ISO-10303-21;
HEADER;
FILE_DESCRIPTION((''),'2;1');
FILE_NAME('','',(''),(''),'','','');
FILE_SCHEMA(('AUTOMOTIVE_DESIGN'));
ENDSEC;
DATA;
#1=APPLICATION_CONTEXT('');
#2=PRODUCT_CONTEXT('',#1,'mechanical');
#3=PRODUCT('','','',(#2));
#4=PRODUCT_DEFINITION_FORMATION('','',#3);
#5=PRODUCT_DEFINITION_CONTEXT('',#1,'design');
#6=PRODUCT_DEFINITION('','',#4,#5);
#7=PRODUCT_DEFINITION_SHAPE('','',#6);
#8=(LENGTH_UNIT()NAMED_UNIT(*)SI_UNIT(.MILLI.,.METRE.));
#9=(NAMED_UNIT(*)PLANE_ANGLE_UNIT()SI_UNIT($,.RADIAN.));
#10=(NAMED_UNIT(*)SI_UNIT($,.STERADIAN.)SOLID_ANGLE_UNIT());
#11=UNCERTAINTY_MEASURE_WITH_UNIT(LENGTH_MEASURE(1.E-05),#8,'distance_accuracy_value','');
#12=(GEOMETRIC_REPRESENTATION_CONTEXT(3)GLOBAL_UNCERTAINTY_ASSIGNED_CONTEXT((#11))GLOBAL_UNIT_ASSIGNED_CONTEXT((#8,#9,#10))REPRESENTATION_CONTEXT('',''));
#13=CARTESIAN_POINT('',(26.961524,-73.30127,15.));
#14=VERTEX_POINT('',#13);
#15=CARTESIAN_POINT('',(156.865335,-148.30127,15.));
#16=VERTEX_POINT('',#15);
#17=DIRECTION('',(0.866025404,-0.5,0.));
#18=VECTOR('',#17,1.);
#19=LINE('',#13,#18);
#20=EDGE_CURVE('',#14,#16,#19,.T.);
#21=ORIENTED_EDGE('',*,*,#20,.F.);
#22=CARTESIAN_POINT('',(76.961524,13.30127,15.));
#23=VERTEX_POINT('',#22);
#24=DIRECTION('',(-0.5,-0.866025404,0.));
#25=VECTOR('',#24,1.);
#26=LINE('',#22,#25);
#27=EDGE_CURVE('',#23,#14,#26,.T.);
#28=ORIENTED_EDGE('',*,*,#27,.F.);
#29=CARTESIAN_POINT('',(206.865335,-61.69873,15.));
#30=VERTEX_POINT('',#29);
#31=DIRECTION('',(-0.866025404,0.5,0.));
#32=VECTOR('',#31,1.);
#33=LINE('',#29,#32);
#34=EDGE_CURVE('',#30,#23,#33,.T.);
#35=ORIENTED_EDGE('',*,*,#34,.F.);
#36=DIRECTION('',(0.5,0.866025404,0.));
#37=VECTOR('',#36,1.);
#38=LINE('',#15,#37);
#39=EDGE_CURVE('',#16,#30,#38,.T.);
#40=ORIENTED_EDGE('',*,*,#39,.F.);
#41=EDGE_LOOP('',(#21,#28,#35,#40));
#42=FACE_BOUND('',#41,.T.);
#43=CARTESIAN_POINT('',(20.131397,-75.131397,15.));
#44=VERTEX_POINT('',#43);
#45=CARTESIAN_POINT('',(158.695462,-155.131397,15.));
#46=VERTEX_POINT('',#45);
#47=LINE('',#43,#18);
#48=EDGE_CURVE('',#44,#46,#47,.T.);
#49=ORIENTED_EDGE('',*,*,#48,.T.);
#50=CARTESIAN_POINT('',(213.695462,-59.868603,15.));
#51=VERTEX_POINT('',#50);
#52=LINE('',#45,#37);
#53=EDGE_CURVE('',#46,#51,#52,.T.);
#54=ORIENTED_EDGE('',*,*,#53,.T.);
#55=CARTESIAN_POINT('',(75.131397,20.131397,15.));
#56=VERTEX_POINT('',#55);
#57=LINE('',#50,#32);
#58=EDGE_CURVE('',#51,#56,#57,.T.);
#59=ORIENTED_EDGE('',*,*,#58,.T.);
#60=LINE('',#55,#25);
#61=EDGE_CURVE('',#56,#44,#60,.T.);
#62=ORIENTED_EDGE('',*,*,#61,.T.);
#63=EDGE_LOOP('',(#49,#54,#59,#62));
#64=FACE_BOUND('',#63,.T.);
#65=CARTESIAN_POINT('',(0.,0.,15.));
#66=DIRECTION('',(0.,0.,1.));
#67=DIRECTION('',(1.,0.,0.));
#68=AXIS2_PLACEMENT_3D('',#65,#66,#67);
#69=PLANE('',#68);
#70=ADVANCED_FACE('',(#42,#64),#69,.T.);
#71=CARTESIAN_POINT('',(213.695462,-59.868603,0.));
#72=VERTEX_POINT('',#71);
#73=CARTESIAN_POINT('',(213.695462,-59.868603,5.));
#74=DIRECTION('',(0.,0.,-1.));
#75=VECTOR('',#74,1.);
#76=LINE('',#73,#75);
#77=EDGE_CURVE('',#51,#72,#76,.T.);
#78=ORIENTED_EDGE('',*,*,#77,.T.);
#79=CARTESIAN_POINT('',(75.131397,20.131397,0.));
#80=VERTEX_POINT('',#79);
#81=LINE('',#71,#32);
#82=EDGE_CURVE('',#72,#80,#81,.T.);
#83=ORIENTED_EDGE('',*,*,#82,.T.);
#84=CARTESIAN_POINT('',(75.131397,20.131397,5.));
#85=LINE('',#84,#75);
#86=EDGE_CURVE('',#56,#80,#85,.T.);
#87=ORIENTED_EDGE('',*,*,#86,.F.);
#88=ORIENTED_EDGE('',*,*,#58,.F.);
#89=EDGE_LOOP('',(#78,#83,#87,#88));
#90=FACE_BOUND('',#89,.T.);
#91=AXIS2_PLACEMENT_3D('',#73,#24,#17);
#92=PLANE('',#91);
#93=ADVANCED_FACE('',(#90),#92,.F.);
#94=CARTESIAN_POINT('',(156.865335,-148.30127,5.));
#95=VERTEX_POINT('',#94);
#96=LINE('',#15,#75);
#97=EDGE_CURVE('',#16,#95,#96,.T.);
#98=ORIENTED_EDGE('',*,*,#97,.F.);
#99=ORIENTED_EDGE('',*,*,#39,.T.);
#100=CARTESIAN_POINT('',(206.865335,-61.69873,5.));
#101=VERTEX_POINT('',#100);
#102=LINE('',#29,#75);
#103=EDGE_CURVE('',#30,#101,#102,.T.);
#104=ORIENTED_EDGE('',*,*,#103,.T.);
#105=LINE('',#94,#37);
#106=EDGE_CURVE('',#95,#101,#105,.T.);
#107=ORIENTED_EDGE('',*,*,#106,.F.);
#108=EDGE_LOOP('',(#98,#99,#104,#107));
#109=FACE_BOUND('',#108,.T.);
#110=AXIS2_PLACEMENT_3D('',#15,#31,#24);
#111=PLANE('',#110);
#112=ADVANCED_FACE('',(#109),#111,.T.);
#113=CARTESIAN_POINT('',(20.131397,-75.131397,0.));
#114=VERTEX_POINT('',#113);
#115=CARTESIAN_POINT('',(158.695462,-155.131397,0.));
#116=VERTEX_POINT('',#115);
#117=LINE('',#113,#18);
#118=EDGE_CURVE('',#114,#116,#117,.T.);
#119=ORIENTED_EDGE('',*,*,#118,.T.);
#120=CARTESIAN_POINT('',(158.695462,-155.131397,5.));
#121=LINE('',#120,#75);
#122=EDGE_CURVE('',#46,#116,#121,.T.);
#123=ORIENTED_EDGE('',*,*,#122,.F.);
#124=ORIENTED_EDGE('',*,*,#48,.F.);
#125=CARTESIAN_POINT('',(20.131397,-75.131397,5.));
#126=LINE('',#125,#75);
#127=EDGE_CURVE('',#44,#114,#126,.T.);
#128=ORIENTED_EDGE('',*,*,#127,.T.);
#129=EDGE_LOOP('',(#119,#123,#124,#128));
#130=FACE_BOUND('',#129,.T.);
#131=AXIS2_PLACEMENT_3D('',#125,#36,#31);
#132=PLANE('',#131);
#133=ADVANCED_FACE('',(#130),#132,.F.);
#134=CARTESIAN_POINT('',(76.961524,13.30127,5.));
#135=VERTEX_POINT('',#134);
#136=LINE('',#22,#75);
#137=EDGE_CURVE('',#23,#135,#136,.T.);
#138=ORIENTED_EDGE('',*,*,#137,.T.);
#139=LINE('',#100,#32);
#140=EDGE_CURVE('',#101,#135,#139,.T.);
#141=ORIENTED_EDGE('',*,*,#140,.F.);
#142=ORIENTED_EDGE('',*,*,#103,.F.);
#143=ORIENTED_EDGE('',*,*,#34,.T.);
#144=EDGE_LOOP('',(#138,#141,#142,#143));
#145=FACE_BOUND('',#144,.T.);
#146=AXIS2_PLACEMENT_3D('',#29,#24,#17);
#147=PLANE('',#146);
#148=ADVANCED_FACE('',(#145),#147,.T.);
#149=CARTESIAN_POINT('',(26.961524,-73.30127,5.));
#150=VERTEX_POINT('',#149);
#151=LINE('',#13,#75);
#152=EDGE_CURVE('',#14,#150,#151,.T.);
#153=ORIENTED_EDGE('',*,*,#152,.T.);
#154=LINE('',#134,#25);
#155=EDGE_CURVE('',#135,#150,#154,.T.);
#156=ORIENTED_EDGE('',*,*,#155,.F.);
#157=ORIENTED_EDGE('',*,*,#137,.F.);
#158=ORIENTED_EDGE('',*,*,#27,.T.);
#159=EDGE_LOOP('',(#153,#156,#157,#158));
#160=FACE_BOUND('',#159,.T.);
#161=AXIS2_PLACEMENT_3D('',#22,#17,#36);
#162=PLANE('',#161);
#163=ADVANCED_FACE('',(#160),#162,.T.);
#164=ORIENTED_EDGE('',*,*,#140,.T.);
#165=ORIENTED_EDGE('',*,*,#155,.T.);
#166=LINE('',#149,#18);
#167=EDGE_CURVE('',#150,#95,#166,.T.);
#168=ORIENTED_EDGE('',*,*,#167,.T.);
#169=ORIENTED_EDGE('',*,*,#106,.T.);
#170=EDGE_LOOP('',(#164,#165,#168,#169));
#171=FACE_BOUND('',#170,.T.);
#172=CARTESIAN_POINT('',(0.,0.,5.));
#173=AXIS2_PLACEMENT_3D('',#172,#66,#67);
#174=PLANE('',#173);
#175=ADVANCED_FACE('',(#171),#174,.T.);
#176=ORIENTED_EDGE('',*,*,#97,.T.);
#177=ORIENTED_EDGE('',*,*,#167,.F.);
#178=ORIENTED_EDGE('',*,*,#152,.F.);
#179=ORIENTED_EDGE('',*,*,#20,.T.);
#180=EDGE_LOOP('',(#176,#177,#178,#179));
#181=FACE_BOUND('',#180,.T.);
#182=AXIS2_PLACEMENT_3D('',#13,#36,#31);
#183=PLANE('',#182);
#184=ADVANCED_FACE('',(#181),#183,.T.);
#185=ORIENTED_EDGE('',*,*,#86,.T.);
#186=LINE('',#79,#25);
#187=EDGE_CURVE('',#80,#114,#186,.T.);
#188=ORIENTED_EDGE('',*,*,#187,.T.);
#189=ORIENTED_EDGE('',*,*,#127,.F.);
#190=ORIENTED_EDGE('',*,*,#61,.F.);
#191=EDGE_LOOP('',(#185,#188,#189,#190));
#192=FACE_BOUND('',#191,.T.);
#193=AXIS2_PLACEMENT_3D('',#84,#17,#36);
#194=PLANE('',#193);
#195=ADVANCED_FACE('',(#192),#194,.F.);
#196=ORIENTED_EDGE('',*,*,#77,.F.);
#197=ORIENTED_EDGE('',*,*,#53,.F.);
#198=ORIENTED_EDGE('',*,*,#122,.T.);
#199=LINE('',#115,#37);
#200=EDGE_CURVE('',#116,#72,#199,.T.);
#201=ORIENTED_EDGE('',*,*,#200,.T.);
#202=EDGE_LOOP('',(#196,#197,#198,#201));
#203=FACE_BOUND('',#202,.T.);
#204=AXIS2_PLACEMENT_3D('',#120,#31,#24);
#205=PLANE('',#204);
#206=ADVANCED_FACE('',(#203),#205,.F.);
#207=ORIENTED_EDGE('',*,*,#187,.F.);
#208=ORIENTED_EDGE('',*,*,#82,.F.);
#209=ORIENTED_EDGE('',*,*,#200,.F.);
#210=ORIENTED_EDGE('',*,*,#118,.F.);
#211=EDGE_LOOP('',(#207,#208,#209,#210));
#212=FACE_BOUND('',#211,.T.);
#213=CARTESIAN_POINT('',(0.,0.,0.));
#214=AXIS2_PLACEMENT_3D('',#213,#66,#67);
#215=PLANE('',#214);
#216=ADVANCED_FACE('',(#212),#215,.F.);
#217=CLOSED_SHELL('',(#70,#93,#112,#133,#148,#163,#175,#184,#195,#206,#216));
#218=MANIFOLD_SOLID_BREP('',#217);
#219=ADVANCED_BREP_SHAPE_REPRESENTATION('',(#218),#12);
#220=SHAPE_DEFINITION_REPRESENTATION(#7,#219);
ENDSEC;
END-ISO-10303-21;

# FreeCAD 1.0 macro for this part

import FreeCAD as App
import Part
import Sketcher
from FreeCAD import Vector
Q = App.Units.Quantity

doc = App.newDocument("Part")
body = doc.addObject("PartDesign::Body", "Body")

sketch1 = doc.addObject("Sketcher::SketchObject", "Sketch")
body.addObject(sketch1)
sketch1.AttachmentSupport = (doc.XY_Plane, [""])
sketch1.MapMode = "FlatFace"
sketch1.addGeometry([
    Part.LineSegment(Vector(75, 20, 0), Vector(20, -75, 0)),
    Part.LineSegment(Vector(20, -75, 0), Vector(159, -155, 0)),
    Part.LineSegment(Vector(159, -155, 0), Vector(214, -60, 0)),
    Part.LineSegment(Vector(214, -60, 0), Vector(75, 20, 0)),
], False)
sketch1.addConstraint([
    Sketcher.Constraint("Coincident", 0, 2, 1, 1),
    Sketcher.Constraint("Coincident", 1, 2, 2, 1),
    Sketcher.Constraint("Coincident", 2, 2, 3, 1),
    Sketcher.Constraint("Coincident", 3, 2, 0, 1),
    Sketcher.Constraint("Perpendicular", 0, 1),
    Sketcher.Constraint("Perpendicular", 1, 2),
    Sketcher.Constraint("Perpendicular", 2, 3),
    Sketcher.Constraint("Angle", 0, Q("-120 deg")),
    Sketcher.Constraint("Distance", 0, 110.0),
    Sketcher.Constraint("Distance", 1, 160.0),
    Sketcher.Constraint("DistanceX", -1, 1, 1, 2, 158.695462),
    Sketcher.Constraint("DistanceY", 0, 2, -1, 1, 75.131397),
])
pad1 = doc.addObject("PartDesign::Pad", "Pad")
body.addObject(pad1)
pad1.Profile = sketch1
pad1.Length = 5

sketch2 = doc.addObject("Sketcher::SketchObject", "Sketch001")
body.addObject(sketch2)
sketch2.AttachmentSupport = (doc.XY_Plane, [""])
sketch2.MapMode = "FlatFace"
sketch2.AttachmentOffset = App.Placement(Vector(0, 0, 5), App.Rotation())
sketch2.addGeometry([
    Part.LineSegment(Vector(159, -155, 0), Vector(214, -60, 0)),
    Part.LineSegment(Vector(214, -60, 0), Vector(75, 20, 0)),
    Part.LineSegment(Vector(75, 20, 0), Vector(20, -75, 0)),
    Part.LineSegment(Vector(20, -75, 0), Vector(159, -155, 0)),
    Part.LineSegment(Vector(157, -148, 0), Vector(27, -73, 0)),
    Part.LineSegment(Vector(27, -73, 0), Vector(77, 13, 0)),
    Part.LineSegment(Vector(77, 13, 0), Vector(207, -62, 0)),
    Part.LineSegment(Vector(207, -62, 0), Vector(157, -148, 0)),
], False)
sketch2.addConstraint([
    Sketcher.Constraint("Coincident", 0, 2, 1, 1),
    Sketcher.Constraint("Coincident", 1, 2, 2, 1),
    Sketcher.Constraint("Coincident", 2, 2, 3, 1),
    Sketcher.Constraint("Coincident", 3, 2, 0, 1),
    Sketcher.Constraint("Coincident", 4, 2, 5, 1),
    Sketcher.Constraint("Coincident", 5, 2, 6, 1),
    Sketcher.Constraint("Coincident", 6, 2, 7, 1),
    Sketcher.Constraint("Coincident", 7, 2, 4, 1),
    Sketcher.Constraint("Perpendicular", 0, 1),
    Sketcher.Constraint("Perpendicular", 1, 2),
    Sketcher.Constraint("Perpendicular", 2, 3),
    Sketcher.Constraint("Parallel", 3, 4),
    Sketcher.Constraint("Perpendicular", 4, 5),
    Sketcher.Constraint("Perpendicular", 5, 6),
    Sketcher.Constraint("Perpendicular", 6, 7),
    Sketcher.Constraint("Angle", 0, Q("60 deg")),
    Sketcher.Constraint("Distance", 0, 110.0),
    Sketcher.Constraint("Distance", 1, 160.0),
    Sketcher.Constraint("Distance", 4, 150.0),
    Sketcher.Constraint("Distance", 5, 100.0),
    Sketcher.Constraint("DistanceX", -1, 1, 0, 2, 213.695462),
    Sketcher.Constraint("DistanceY", 4, 2, -1, 1, 73.30127),
    Sketcher.Constraint("DistanceY", 0, 2, -1, 1, 59.868603),
    Sketcher.Constraint("DistanceX", -1, 1, 4, 2, 26.961524),
])
pad2 = doc.addObject("PartDesign::Pad", "Pad001")
body.addObject(pad2)
pad2.Profile = sketch2
pad2.Length = 10

doc.recompute()
